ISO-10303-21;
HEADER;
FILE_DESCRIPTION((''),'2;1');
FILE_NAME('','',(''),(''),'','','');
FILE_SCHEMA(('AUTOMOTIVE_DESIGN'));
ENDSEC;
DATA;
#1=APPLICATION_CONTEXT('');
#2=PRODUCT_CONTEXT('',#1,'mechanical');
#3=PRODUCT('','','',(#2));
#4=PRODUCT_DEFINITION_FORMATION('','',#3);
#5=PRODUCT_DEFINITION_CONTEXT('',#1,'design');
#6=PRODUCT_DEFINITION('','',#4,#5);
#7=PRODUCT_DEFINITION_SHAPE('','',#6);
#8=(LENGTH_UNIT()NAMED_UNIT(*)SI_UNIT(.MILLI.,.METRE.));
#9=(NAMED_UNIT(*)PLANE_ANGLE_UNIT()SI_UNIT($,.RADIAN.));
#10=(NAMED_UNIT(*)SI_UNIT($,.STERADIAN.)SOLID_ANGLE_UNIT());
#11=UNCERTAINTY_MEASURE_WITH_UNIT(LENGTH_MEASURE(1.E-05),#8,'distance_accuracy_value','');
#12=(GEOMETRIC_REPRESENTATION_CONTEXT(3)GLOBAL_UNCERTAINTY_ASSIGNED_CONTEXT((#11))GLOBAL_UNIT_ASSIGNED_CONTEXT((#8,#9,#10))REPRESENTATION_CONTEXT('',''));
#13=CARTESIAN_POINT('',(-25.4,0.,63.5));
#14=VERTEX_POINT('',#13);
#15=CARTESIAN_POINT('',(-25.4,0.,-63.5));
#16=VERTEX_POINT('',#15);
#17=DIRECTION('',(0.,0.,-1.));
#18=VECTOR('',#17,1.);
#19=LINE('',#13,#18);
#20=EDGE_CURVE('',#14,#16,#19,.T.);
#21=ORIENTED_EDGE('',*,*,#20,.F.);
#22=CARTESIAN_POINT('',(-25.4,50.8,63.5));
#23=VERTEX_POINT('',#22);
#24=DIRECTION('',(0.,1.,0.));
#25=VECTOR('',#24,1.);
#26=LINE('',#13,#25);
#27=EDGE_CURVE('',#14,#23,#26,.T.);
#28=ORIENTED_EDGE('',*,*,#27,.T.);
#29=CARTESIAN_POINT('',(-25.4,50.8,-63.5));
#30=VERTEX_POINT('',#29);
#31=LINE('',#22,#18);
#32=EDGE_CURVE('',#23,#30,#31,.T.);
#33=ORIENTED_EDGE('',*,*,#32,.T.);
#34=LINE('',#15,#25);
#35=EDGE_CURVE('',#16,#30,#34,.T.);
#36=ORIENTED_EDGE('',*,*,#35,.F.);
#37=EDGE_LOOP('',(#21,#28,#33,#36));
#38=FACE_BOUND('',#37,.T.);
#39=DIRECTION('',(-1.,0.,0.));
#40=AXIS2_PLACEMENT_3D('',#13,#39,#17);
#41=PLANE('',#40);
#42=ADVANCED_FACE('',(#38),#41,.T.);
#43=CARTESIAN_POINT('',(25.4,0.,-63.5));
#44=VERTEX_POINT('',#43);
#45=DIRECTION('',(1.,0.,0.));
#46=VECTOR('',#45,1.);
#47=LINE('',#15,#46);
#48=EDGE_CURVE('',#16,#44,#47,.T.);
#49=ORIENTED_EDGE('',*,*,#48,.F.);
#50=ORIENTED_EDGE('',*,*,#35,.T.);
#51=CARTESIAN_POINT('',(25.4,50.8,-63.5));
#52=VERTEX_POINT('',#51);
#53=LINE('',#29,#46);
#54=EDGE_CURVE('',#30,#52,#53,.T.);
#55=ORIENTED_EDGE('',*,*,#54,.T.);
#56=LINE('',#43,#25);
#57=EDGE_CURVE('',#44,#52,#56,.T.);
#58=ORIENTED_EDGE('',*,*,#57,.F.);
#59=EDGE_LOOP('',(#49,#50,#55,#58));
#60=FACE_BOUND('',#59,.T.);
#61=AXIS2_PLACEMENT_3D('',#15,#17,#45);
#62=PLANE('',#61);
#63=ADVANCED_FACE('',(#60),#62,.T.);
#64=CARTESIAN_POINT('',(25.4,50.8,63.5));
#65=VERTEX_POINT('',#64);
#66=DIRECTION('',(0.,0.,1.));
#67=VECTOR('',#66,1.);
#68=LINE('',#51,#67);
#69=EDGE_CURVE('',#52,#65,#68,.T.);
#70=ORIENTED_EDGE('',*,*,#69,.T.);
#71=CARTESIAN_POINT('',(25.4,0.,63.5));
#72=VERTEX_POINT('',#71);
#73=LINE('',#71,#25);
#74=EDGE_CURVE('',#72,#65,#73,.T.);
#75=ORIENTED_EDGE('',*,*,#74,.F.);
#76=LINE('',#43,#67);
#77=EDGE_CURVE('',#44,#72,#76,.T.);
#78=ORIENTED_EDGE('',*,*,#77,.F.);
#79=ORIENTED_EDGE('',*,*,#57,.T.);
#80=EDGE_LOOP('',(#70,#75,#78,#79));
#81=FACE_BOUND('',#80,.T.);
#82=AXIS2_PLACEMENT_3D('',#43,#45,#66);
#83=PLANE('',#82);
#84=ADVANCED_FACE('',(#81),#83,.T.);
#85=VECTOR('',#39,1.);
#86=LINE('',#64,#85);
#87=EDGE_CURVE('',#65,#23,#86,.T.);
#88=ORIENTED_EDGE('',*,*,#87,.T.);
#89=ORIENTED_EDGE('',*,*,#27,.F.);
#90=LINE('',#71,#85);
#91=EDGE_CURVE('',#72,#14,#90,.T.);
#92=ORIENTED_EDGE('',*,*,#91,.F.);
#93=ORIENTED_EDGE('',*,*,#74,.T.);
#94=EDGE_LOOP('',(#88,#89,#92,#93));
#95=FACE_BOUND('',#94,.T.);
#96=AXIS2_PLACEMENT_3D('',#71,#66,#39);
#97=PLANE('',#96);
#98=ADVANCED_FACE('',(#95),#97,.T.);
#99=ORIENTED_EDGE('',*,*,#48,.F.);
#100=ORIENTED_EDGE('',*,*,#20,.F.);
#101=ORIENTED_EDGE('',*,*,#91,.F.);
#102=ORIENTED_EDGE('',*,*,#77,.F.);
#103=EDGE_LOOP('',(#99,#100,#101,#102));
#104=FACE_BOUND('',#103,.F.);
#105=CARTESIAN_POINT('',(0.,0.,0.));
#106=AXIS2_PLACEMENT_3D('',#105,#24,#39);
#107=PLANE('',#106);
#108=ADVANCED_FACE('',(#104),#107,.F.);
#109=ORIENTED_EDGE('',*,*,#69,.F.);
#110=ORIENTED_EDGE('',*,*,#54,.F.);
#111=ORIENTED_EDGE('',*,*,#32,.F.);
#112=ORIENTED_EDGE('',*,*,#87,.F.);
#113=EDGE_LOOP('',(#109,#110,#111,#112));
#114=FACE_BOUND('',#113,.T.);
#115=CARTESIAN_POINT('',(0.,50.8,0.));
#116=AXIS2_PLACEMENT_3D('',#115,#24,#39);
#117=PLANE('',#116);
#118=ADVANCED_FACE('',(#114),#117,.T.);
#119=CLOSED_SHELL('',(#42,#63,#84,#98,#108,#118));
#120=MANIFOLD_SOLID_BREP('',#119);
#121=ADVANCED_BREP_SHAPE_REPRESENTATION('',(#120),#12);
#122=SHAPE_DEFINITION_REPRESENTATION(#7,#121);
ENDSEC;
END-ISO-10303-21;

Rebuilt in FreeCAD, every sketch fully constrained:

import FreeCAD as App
import Part
import Sketcher

V = App.Vector
Q = App.Units.Quantity

doc = App.newDocument("Part")
params = doc.addObject("Spreadsheet::Sheet", "Params")
for row, (alias, value) in enumerate([
    ("sketch1_width", "2 in"),
    ("sketch1_height", "5 in"),
    ("pad1_length", "2 in"),
], start=1):
    params.set(f"A{row}", alias)
    params.set(f"B{row}", "=" + value)
    params.setAlias(f"B{row}", alias)

body = doc.addObject("PartDesign::Body", "Body")

sketch1 = body.newObject("Sketcher::SketchObject", "Sketch")
sketch1.AttachmentSupport = (doc.getObject("XZ_Plane"), [""])
sketch1.MapMode = "FlatFace"
sketch1.addGeometry([
    Part.LineSegment(V(-25, 64, 0), V(25, 64, 0)),
    Part.LineSegment(V(25, 64, 0), V(25, -64, 0)),
    Part.LineSegment(V(25, -64, 0), V(-25, -64, 0)),
    Part.LineSegment(V(-25, -64, 0), V(-25, 64, 0)),
], False)
sketch1.addConstraint([
    Sketcher.Constraint("Coincident", 0, 2, 1, 1),
    Sketcher.Constraint("Coincident", 1, 2, 2, 1),
    Sketcher.Constraint("Coincident", 2, 2, 3, 1),
    Sketcher.Constraint("Coincident", 3, 2, 0, 1),
    Sketcher.Constraint("Horizontal", 0),
    Sketcher.Constraint("Vertical", 1),
    Sketcher.Constraint("Horizontal", 2),
    Sketcher.Constraint("Vertical", 3),
    Sketcher.Constraint("Symmetric", 0, 2, 2, 2, -1, 1),
    Sketcher.Constraint("DistanceX", 0, 1, 0, 2, Q("2 in")),
    Sketcher.Constraint("DistanceY", 1, 2, 1, 1, Q("5 in")),
])
sketch1.setExpression("Constraints[9]", "Params.sketch1_width")
sketch1.setExpression("Constraints[10]", "Params.sketch1_height")
pad1 = body.newObject("PartDesign::Pad", "Pad")
pad1.Profile = sketch1
pad1.setExpression("Length", "Params.pad1_length")
pad1.Reversed = True

doc.recompute()
